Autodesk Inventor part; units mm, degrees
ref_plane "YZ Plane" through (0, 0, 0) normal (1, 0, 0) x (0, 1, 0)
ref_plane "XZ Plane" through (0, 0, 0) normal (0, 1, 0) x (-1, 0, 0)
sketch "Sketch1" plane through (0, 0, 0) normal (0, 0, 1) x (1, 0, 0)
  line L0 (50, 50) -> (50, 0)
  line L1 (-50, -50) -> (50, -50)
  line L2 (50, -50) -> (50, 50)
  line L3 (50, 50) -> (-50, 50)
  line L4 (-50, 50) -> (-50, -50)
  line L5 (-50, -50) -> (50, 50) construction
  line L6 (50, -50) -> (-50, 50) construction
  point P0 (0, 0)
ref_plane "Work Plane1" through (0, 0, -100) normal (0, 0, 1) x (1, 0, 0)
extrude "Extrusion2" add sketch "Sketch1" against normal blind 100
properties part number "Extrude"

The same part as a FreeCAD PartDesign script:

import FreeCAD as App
import Part
import Sketcher
from FreeCAD import Vector
Q = App.Units.Quantity

doc = App.newDocument("Part")
body = doc.addObject("PartDesign::Body", "Body")

# Sketch on XY plane
sketch1 = body.newObject("Sketcher::SketchObject", "Sketch")
sketch1.AttachmentSupport = (doc.getObject("XY_Plane"), [""])
sketch1.MapMode = "FlatFace"
sketch1.addGeometry(Part.LineSegment(Vector(50, -50, 0), Vector(50, 50, 0)), False)
sketch1.addGeometry(Part.LineSegment(Vector(50, 50, 0), Vector(-50, 50, 0)), False)
sketch1.addGeometry(Part.LineSegment(Vector(-50, 50, 0), Vector(-50, -50, 0)), False)
sketch1.addGeometry(Part.LineSegment(Vector(-50, -50, 0), Vector(50, -50, 0)), False)
sketch1.addConstraint(Sketcher.Constraint("Coincident", 0, 2, 1, 1))
sketch1.addConstraint(Sketcher.Constraint("Coincident", 1, 2, 2, 1))
sketch1.addConstraint(Sketcher.Constraint("Coincident", 2, 2, 3, 1))
sketch1.addConstraint(Sketcher.Constraint("Coincident", 3, 2, 0, 1))
sketch1.addConstraint(Sketcher.Constraint("Vertical", 0))
sketch1.addConstraint(Sketcher.Constraint("Horizontal", 1))
sketch1.addConstraint(Sketcher.Constraint("Vertical", 2))
sketch1.addConstraint(Sketcher.Constraint("Horizontal", 3))
sketch1.addConstraint(Sketcher.Constraint("Symmetric", 0, 2, 2, 2, -1, 1))
sketch1.addConstraint(Sketcher.Constraint("Equal", 3, 0))
sketch1.addConstraint(Sketcher.Constraint("DistanceX", 1, 2, 1, 1, Q("3.937 in")))
pad1 = body.newObject("PartDesign::Pad", "Pad")
pad1.Profile = sketch1
pad1.Length = Q("3.9370079 in")
pad1.Reversed = True

doc.recompute()
